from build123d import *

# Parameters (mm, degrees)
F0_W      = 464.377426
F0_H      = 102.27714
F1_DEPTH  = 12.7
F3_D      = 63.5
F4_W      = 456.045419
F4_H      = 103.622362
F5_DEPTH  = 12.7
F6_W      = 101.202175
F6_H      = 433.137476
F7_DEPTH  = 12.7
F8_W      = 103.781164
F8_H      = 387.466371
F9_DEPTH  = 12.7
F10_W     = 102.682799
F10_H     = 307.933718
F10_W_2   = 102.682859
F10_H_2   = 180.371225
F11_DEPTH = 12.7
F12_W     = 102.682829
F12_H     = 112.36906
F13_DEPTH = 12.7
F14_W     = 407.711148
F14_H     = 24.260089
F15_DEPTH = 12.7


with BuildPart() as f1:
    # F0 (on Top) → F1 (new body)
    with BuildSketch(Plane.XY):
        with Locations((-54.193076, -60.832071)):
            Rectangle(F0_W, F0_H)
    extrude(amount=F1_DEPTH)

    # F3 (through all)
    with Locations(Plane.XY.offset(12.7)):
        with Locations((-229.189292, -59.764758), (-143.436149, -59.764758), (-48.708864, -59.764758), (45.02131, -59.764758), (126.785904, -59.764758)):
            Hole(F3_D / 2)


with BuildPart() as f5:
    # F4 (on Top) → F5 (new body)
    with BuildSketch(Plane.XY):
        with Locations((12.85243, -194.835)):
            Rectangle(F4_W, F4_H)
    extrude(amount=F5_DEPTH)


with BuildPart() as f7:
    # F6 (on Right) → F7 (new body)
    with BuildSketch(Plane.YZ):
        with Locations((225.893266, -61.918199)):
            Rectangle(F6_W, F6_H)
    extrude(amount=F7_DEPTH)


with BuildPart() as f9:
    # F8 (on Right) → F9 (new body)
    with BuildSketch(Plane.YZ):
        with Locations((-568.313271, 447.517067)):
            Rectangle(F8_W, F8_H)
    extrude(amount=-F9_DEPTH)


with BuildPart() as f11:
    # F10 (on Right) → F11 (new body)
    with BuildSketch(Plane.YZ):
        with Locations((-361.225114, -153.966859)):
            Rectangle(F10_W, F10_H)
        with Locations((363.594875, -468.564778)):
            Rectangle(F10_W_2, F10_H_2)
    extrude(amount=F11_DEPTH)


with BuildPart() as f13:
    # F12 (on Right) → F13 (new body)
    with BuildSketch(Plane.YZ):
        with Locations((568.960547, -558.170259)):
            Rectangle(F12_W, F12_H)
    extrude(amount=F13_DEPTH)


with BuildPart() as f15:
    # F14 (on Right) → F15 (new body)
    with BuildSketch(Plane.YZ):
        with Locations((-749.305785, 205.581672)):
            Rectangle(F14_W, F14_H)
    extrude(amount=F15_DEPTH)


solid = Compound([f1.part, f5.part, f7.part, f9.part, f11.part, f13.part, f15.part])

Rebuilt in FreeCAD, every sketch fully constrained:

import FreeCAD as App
import Part
import Sketcher
from FreeCAD import Vector
Q = App.Units.Quantity

doc = App.newDocument("Part")
body = doc.addObject("PartDesign::Body", "Body")

sketch1 = doc.addObject("Sketcher::SketchObject", "Sketch")
body.addObject(sketch1)
sketch1.AttachmentSupport = (doc.XY_Plane, [""])
sketch1.MapMode = "FlatFace"
sketch1.addGeometry(Part.LineSegment(Vector(-286, -10, 0), Vector(-286, -112, 0)), False)
sketch1.addGeometry(Part.LineSegment(Vector(-286, -112, 0), Vector(178, -112, 0)), False)
sketch1.addGeometry(Part.LineSegment(Vector(178, -112, 0), Vector(178, -10, 0)), False)
sketch1.addGeometry(Part.LineSegment(Vector(178, -10, 0), Vector(-286, -10, 0)), False)
sketch1.addConstraint(Sketcher.Constraint("Coincident", 0, 2, 1, 1))
sketch1.addConstraint(Sketcher.Constraint("Coincident", 1, 2, 2, 1))
sketch1.addConstraint(Sketcher.Constraint("Coincident", 2, 2, 3, 1))
sketch1.addConstraint(Sketcher.Constraint("Coincident", 3, 2, 0, 1))
sketch1.addConstraint(Sketcher.Constraint("Vertical", 0))
sketch1.addConstraint(Sketcher.Constraint("Horizontal", 1))
sketch1.addConstraint(Sketcher.Constraint("Vertical", 2))
sketch1.addConstraint(Sketcher.Constraint("Horizontal", 3))
sketch1.addConstraint(Sketcher.Constraint("DistanceY", 0, 2, 0, 1, Q("102.27714 mm")))
sketch1.addConstraint(Sketcher.Constraint("DistanceY", 2, 2, -1, 1, Q("9.693501 mm")))
sketch1.addConstraint(Sketcher.Constraint("DistanceX", 1, 1, 1, 2, Q("464.377426 mm")))
sketch1.addConstraint(Sketcher.Constraint("DistanceX", 0, 2, -1, 1, Q("286.381789 mm")))
pad1 = doc.addObject("PartDesign::Pad", "Pad")
body.addObject(pad1)
pad1.Profile = sketch1
pad1.Length = Q("0.5 in")

sketch2 = doc.addObject("Sketcher::SketchObject", "Sketch001")
body.addObject(sketch2)
sketch2.AttachmentSupport = (doc.XY_Plane, [""])
sketch2.MapMode = "FlatFace"
sketch2.AttachmentOffset = App.Placement(Vector(0, 0, 0.5 * 25.4), App.Rotation())
sketch2.addGeometry(Part.Circle(Vector(-229, -60, 0), Vector(0, 0, 1), 32), False)
sketch2.addGeometry(Part.Circle(Vector(-143, -60, 0), Vector(0, 0, 1), 32), False)
sketch2.addGeometry(Part.Circle(Vector(-49, -60, 0), Vector(0, 0, 1), 32), False)
sketch2.addGeometry(Part.Circle(Vector(45, -60, 0), Vector(0, 0, 1), 32), False)
sketch2.addGeometry(Part.Circle(Vector(127, -60, 0), Vector(0, 0, 1), 32), False)
sketch2.addConstraint(Sketcher.Constraint("Equal", 0, 1))
sketch2.addConstraint(Sketcher.Constraint("Equal", 1, 2))
sketch2.addConstraint(Sketcher.Constraint("Equal", 2, 3))
sketch2.addConstraint(Sketcher.Constraint("Equal", 3, 4))
sketch2.addConstraint(Sketcher.Constraint("Horizontal", 0, 3, 1, 3))
sketch2.addConstraint(Sketcher.Constraint("Horizontal", 1, 3, 2, 3))
sketch2.addConstraint(Sketcher.Constraint("Horizontal", 2, 3, 3, 3))
sketch2.addConstraint(Sketcher.Constraint("Horizontal", 3, 3, 4, 3))
sketch2.addConstraint(Sketcher.Constraint("Diameter", 0, Q("2.5 in")))
sketch2.addConstraint(Sketcher.Constraint("DistanceX", 0, 3, 3, 3, Q("274.210602 mm")))
sketch2.addConstraint(Sketcher.Constraint("DistanceX", 0, 3, -1, 1, Q("229.189292 mm")))
sketch2.addConstraint(Sketcher.Constraint("DistanceX", 1, 3, -1, 1, Q("143.436149 mm")))
sketch2.addConstraint(Sketcher.Constraint("DistanceX", 2, 3, 4, 3, Q("175.494768 mm")))
sketch2.addConstraint(Sketcher.Constraint("DistanceY", 0, 3, -1, 1, Q("59.764758 mm")))
sketch2.addConstraint(Sketcher.Constraint("DistanceX", 2, 3, -1, 1, Q("48.708864 mm")))
doc.recompute()
hole = doc.addObject("PartDesign::Hole", "Hole")
body.addObject(hole)
hole.Profile = sketch2
hole.ThreadType = "None"
hole.Diameter = Q("2.5 in")
hole.DepthType = "ThroughAll"
body2 = doc.addObject("PartDesign::Body", "Body001")

sketch3 = doc.addObject("Sketcher::SketchObject", "Sketch002")
body2.addObject(sketch3)
sketch3.AttachmentSupport = (doc.getObject("XY_Plane001"), [""])
sketch3.MapMode = "FlatFace"
sketch3.addGeometry(Part.LineSegment(Vector(-215, -143, 0), Vector(-215, -247, 0)), False)
sketch3.addGeometry(Part.LineSegment(Vector(-215, -247, 0), Vector(241, -247, 0)), False)
sketch3.addGeometry(Part.LineSegment(Vector(241, -247, 0), Vector(241, -143, 0)), False)
sketch3.addGeometry(Part.LineSegment(Vector(241, -143, 0), Vector(-215, -143, 0)), False)
sketch3.addConstraint(Sketcher.Constraint("Coincident", 0, 2, 1, 1))
sketch3.addConstraint(Sketcher.Constraint("Coincident", 1, 2, 2, 1))
sketch3.addConstraint(Sketcher.Constraint("Coincident", 2, 2, 3, 1))
sketch3.addConstraint(Sketcher.Constraint("Coincident", 3, 2, 0, 1))
sketch3.addConstraint(Sketcher.Constraint("Vertical", 0))
sketch3.addConstraint(Sketcher.Constraint("Horizontal", 1))
sketch3.addConstraint(Sketcher.Constraint("Vertical", 2))
sketch3.addConstraint(Sketcher.Constraint("Horizontal", 3))
sketch3.addConstraint(Sketcher.Constraint("DistanceX", 1, 1, 1, 2, Q("456.045419 mm")))
sketch3.addConstraint(Sketcher.Constraint("DistanceY", 0, 2, 0, 1, Q("103.622362 mm")))
sketch3.addConstraint(Sketcher.Constraint("DistanceX", 0, 2, -1, 1, Q("215.170279 mm")))
sketch3.addConstraint(Sketcher.Constraint("DistanceY", 0, 2, -1, 1, Q("246.646181 mm")))
pad2 = doc.addObject("PartDesign::Pad", "Pad001")
body2.addObject(pad2)
pad2.Profile = sketch3
pad2.Length = Q("0.5 in")
body3 = doc.addObject("PartDesign::Body", "Body002")

sketch4 = doc.addObject("Sketcher::SketchObject", "Sketch003")
body3.addObject(sketch4)
sketch4.AttachmentSupport = (doc.getObject("YZ_Plane002"), [""])
sketch4.MapMode = "FlatFace"
sketch4.addGeometry(Part.LineSegment(Vector(175, 155, 0), Vector(175, -278, 0)), False)
sketch4.addGeometry(Part.LineSegment(Vector(175, -278, 0), Vector(276, -278, 0)), False)
sketch4.addGeometry(Part.LineSegment(Vector(276, -278, 0), Vector(276, 155, 0)), False)
sketch4.addGeometry(Part.LineSegment(Vector(276, 155, 0), Vector(175, 155, 0)), False)
sketch4.addConstraint(Sketcher.Constraint("Coincident", 0, 2, 1, 1))
sketch4.addConstraint(Sketcher.Constraint("Coincident", 1, 2, 2, 1))
sketch4.addConstraint(Sketcher.Constraint("Coincident", 2, 2, 3, 1))
sketch4.addConstraint(Sketcher.Constraint("Coincident", 3, 2, 0, 1))
sketch4.addConstraint(Sketcher.Constraint("Vertical", 0))
sketch4.addConstraint(Sketcher.Constraint("Horizontal", 1))
sketch4.addConstraint(Sketcher.Constraint("Vertical", 2))
sketch4.addConstraint(Sketcher.Constraint("Horizontal", 3))
sketch4.addConstraint(Sketcher.Constraint("DistanceX", 1, 1, 1, 2, Q("101.202175 mm")))
sketch4.addConstraint(Sketcher.Constraint("DistanceY", 0, 2, 0, 1, Q("433.137476 mm")))
sketch4.addConstraint(Sketcher.Constraint("DistanceX", -1, 1, 0, 2, Q("175.292179 mm")))
sketch4.addConstraint(Sketcher.Constraint("DistanceY", -1, 1, 2, 2, Q("154.650539 mm")))
pad3 = doc.addObject("PartDesign::Pad", "Pad002")
body3.addObject(pad3)
pad3.Profile = sketch4
pad3.Length = Q("0.5 in")
body4 = doc.addObject("PartDesign::Body", "Body003")

sketch5 = doc.addObject("Sketcher::SketchObject", "Sketch004")
body4.addObject(sketch5)
sketch5.AttachmentSupport = (doc.getObject("YZ_Plane003"), [""])
sketch5.MapMode = "FlatFace"
sketch5.addGeometry(Part.LineSegment(Vector(-620, 641, 0), Vector(-620, 254, 0)), False)
sketch5.addGeometry(Part.LineSegment(Vector(-620, 254, 0), Vector(-516, 254, 0)), False)
sketch5.addGeometry(Part.LineSegment(Vector(-516, 254, 0), Vector(-516, 641, 0)), False)
sketch5.addGeometry(Part.LineSegment(Vector(-516, 641, 0), Vector(-620, 641, 0)), False)
sketch5.addConstraint(Sketcher.Constraint("Coincident", 0, 2, 1, 1))
sketch5.addConstraint(Sketcher.Constraint("Coincident", 1, 2, 2, 1))
sketch5.addConstraint(Sketcher.Constraint("Coincident", 2, 2, 3, 1))
sketch5.addConstraint(Sketcher.Constraint("Coincident", 3, 2, 0, 1))
sketch5.addConstraint(Sketcher.Constraint("Vertical", 0))
sketch5.addConstraint(Sketcher.Constraint("Horizontal", 1))
sketch5.addConstraint(Sketcher.Constraint("Vertical", 2))
sketch5.addConstraint(Sketcher.Constraint("Horizontal", 3))
sketch5.addConstraint(Sketcher.Constraint("DistanceY", 0, 2, 0, 1, Q("387.466371 mm")))
sketch5.addConstraint(Sketcher.Constraint("DistanceX", 1, 1, 1, 2, Q("103.781164 mm")))
sketch5.addConstraint(Sketcher.Constraint("DistanceY", -1, 1, 0, 2, Q("253.783882 mm")))
sketch5.addConstraint(Sketcher.Constraint("DistanceX", 1, 2, -1, 1, Q("516.422689 mm")))
pad4 = doc.addObject("PartDesign::Pad", "Pad003")
body4.addObject(pad4)
pad4.Profile = sketch5
pad4.Length = Q("0.5 in")
pad4.Reversed = True
body5 = doc.addObject("PartDesign::Body", "Body004")
body5.AllowCompound = True

sketch6 = doc.addObject("Sketcher::SketchObject", "Sketch005")
body5.addObject(sketch6)
sketch6.AttachmentSupport = (doc.getObject("YZ_Plane004"), [""])
sketch6.MapMode = "FlatFace"
sketch6.addGeometry(Part.LineSegment(Vector(-413, 0, 0), Vector(-413, -308, 0)), False)
sketch6.addGeometry(Part.LineSegment(Vector(-413, -308, 0), Vector(-310, -308, 0)), False)
sketch6.addGeometry(Part.LineSegment(Vector(-310, -308, 0), Vector(-310, 0, 0)), False)
sketch6.addGeometry(Part.LineSegment(Vector(-310, 0, 0), Vector(-413, 0, 0)), False)
sketch6.addGeometry(Part.LineSegment(Vector(312, -378, 0), Vector(312, -559, 0)), False)
sketch6.addGeometry(Part.LineSegment(Vector(312, -559, 0), Vector(415, -559, 0)), False)
sketch6.addGeometry(Part.LineSegment(Vector(415, -559, 0), Vector(415, -378, 0)), False)
sketch6.addGeometry(Part.LineSegment(Vector(415, -378, 0), Vector(312, -378, 0)), False)
sketch6.addConstraint(Sketcher.Constraint("Coincident", 0, 2, 1, 1))
sketch6.addConstraint(Sketcher.Constraint("Coincident", 1, 2, 2, 1))
sketch6.addConstraint(Sketcher.Constraint("Coincident", 2, 2, 3, 1))
sketch6.addConstraint(Sketcher.Constraint("Coincident", 3, 2, 0, 1))
sketch6.addConstraint(Sketcher.Constraint("Coincident", 4, 2, 5, 1))
sketch6.addConstraint(Sketcher.Constraint("Coincident", 5, 2, 6, 1))
sketch6.addConstraint(Sketcher.Constraint("Coincident", 6, 2, 7, 1))
sketch6.addConstraint(Sketcher.Constraint("Coincident", 7, 2, 4, 1))
sketch6.addConstraint(Sketcher.Constraint("Vertical", 0))
sketch6.addConstraint(Sketcher.Constraint("Horizontal", 1))
sketch6.addConstraint(Sketcher.Constraint("Vertical", 2))
sketch6.addConstraint(Sketcher.Constraint("Horizontal", 3))
sketch6.addConstraint(Sketcher.Constraint("Vertical", 4))
sketch6.addConstraint(Sketcher.Constraint("Horizontal", 5))
sketch6.addConstraint(Sketcher.Constraint("Vertical", 6))
sketch6.addConstraint(Sketcher.Constraint("Horizontal", 7))
sketch6.addConstraint(Sketcher.Constraint("PointOnObject", 2, 2, -1))
sketch6.addConstraint(Sketcher.Constraint("DistanceX", 1, 1, 1, 2, Q("102.682799 mm")))
sketch6.addConstraint(Sketcher.Constraint("DistanceX", 5, 1, 5, 2, Q("102.682859 mm")))
sketch6.addConstraint(Sketcher.Constraint("DistanceY", 0, 2, 0, 1, Q("307.933718 mm")))
sketch6.addConstraint(Sketcher.Constraint("DistanceY", 4, 2, 4, 1, Q("180.371225 mm")))
sketch6.addConstraint(Sketcher.Constraint("DistanceY", 4, 2, -1, 1, Q("558.75039 mm")))
sketch6.addConstraint(Sketcher.Constraint("DistanceX", 1, 2, 4, 2, Q("622.13716 mm")))
sketch6.addConstraint(Sketcher.Constraint("DistanceX", 0, 2, -1, 1, Q("412.566513 mm")))
pad5 = doc.addObject("PartDesign::Pad", "Pad004")
body5.addObject(pad5)
pad5.Profile = sketch6
pad5.Length = Q("0.5 in")
body6 = doc.addObject("PartDesign::Body", "Body005")

sketch7 = doc.addObject("Sketcher::SketchObject", "Sketch006")
body6.addObject(sketch7)
sketch7.AttachmentSupport = (doc.getObject("YZ_Plane005"), [""])
sketch7.MapMode = "FlatFace"
sketch7.addGeometry(Part.LineSegment(Vector(518, -502, 0), Vector(518, -614, 0)), False)
sketch7.addGeometry(Part.LineSegment(Vector(518, -614, 0), Vector(620, -614, 0)), False)
sketch7.addGeometry(Part.LineSegment(Vector(620, -614, 0), Vector(620, -502, 0)), False)
sketch7.addGeometry(Part.LineSegment(Vector(620, -502, 0), Vector(518, -502, 0)), False)
sketch7.addConstraint(Sketcher.Constraint("Coincident", 0, 2, 1, 1))
sketch7.addConstraint(Sketcher.Constraint("Coincident", 1, 2, 2, 1))
sketch7.addConstraint(Sketcher.Constraint("Coincident", 2, 2, 3, 1))
sketch7.addConstraint(Sketcher.Constraint("Coincident", 3, 2, 0, 1))
sketch7.addConstraint(Sketcher.Constraint("Vertical", 0))
sketch7.addConstraint(Sketcher.Constraint("Horizontal", 1))
sketch7.addConstraint(Sketcher.Constraint("Vertical", 2))
sketch7.addConstraint(Sketcher.Constraint("Horizontal", 3))
sketch7.addConstraint(Sketcher.Constraint("DistanceX", 1, 1, 1, 2, Q("102.682829 mm")))
sketch7.addConstraint(Sketcher.Constraint("DistanceY", 0, 2, 0, 1, Q("112.36906 mm")))
sketch7.addConstraint(Sketcher.Constraint("DistanceY", 0, 2, -1, 1, Q("614.354789 mm")))
sketch7.addConstraint(Sketcher.Constraint("DistanceX", -1, 1, 1, 2, Q("620.301961 mm")))
pad6 = doc.addObject("PartDesign::Pad", "Pad005")
body6.addObject(pad6)
pad6.Profile = sketch7
pad6.Length = Q("0.5 in")
body7 = doc.addObject("PartDesign::Body", "Body006")

sketch8 = doc.addObject("Sketcher::SketchObject", "Sketch007")
body7.addObject(sketch8)
sketch8.AttachmentSupport = (doc.getObject("YZ_Plane006"), [""])
sketch8.MapMode = "FlatFace"
sketch8.addGeometry(Part.LineSegment(Vector(-953, 218, 0), Vector(-953, 193, 0)), False)
sketch8.addGeometry(Part.LineSegment(Vector(-953, 193, 0), Vector(-545, 193, 0)), False)
sketch8.addGeometry(Part.LineSegment(Vector(-545, 193, 0), Vector(-545, 218, 0)), False)
sketch8.addGeometry(Part.LineSegment(Vector(-545, 218, 0), Vector(-953, 218, 0)), False)
sketch8.addConstraint(Sketcher.Constraint("Coincident", 0, 2, 1, 1))
sketch8.addConstraint(Sketcher.Constraint("Coincident", 1, 2, 2, 1))
sketch8.addConstraint(Sketcher.Constraint("Coincident", 2, 2, 3, 1))
sketch8.addConstraint(Sketcher.Constraint("Coincident", 3, 2, 0, 1))
sketch8.addConstraint(Sketcher.Constraint("Vertical", 0))
sketch8.addConstraint(Sketcher.Constraint("Horizontal", 1))
sketch8.addConstraint(Sketcher.Constraint("Vertical", 2))
sketch8.addConstraint(Sketcher.Constraint("Horizontal", 3))
sketch8.addConstraint(Sketcher.Constraint("DistanceX", 1, 1, 1, 2, Q("407.711148 mm")))
sketch8.addConstraint(Sketcher.Constraint("DistanceY", 0, 2, 0, 1, Q("24.260089 mm")))
sketch8.addConstraint(Sketcher.Constraint("DistanceX", 0, 2, -1, 1, Q("953.161359 mm")))
sketch8.addConstraint(Sketcher.Constraint("DistanceY", -1, 1, 0, 2, Q("193.451628 mm")))
pad7 = doc.addObject("PartDesign::Pad", "Pad006")
body7.addObject(pad7)
pad7.Profile = sketch8
pad7.Length = Q("0.5 in")

doc.recompute()
